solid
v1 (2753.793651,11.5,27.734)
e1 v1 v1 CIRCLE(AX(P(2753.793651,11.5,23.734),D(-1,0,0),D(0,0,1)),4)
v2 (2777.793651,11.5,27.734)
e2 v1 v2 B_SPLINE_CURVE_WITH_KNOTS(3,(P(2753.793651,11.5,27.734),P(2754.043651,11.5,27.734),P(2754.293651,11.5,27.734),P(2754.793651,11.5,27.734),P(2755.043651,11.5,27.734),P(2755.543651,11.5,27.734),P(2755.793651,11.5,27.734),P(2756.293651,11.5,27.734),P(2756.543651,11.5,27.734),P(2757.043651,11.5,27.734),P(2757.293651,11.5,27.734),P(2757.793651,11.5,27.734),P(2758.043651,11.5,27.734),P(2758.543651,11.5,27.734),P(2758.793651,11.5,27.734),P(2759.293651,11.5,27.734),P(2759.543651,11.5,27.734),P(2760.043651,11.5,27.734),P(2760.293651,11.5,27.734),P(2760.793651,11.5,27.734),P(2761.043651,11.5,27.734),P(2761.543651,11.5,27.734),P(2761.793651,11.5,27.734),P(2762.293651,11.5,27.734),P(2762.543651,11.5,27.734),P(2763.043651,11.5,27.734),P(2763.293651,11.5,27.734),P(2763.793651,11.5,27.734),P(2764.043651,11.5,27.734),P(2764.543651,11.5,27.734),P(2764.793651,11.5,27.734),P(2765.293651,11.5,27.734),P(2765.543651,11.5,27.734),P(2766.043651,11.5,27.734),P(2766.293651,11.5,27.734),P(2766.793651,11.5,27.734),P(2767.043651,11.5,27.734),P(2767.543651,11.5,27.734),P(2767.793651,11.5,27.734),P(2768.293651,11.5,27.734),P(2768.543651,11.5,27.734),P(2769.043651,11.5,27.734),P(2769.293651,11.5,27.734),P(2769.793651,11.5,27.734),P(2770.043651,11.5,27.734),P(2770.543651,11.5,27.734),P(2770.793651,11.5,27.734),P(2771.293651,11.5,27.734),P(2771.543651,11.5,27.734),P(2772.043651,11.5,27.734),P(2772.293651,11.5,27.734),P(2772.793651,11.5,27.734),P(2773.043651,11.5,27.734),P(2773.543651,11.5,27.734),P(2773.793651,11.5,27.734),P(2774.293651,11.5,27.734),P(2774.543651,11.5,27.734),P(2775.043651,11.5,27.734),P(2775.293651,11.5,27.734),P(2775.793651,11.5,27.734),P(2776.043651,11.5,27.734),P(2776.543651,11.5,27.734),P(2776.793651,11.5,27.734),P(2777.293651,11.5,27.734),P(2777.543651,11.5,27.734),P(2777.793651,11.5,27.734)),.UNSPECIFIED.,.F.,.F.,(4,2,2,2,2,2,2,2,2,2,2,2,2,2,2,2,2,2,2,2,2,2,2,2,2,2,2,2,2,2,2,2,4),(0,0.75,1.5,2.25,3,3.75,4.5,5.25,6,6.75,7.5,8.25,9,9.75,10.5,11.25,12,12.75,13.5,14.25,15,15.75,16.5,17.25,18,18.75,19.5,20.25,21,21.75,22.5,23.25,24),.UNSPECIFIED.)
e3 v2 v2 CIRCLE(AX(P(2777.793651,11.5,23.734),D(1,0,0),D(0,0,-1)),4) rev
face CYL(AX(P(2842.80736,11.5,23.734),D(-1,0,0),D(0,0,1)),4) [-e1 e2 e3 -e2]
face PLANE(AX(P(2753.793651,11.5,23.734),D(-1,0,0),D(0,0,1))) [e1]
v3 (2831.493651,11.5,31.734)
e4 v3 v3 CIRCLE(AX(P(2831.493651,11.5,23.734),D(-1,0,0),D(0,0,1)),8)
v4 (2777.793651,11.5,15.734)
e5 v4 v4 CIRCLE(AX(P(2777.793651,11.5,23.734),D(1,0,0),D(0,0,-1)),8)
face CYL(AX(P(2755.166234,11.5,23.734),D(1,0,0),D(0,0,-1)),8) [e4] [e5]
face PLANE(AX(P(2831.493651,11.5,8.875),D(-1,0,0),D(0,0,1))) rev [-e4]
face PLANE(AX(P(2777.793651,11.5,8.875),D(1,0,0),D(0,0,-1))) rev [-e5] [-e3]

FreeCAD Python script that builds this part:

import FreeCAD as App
import Part
import Sketcher
from FreeCAD import Vector

doc = App.newDocument("Part")
body = doc.addObject("PartDesign::Body", "Body")

# Sketch on YZ plane
sketch1 = doc.addObject("Sketcher::SketchObject", "Sketch")
body.addObject(sketch1)
sketch1.AttachmentSupport = (doc.YZ_Plane, [""])
sketch1.MapMode = "FlatFace"
sketch1.AttachmentOffset = App.Placement(Vector(0, 0, 2753.793651), App.Rotation())
sketch1.addGeometry(Part.Circle(Vector(11.5, 23.734, 0), Vector(0, 0, 1), 4), False)
sketch1.addConstraint([
    Sketcher.Constraint("Diameter", 0, 8.0),
    Sketcher.Constraint("DistanceX", -1, 1, 0, 3, 11.5),
    Sketcher.Constraint("DistanceY", -1, 1, 0, 3, 23.734),
])
pad1 = doc.addObject("PartDesign::Pad", "Pad")
body.addObject(pad1)
pad1.Profile = sketch1
pad1.Length = 77.7

# Sketch on YZ plane
sketch2 = doc.addObject("Sketcher::SketchObject", "Sketch001")
body.addObject(sketch2)
sketch2.AttachmentSupport = (doc.YZ_Plane, [""])
sketch2.MapMode = "FlatFace"
sketch2.AttachmentOffset = App.Placement(Vector(0, 0, 2831.493651), App.Rotation())
sketch2.addGeometry(Part.Circle(Vector(11.5, 23.734, 0), Vector(0, 0, 1), 8), False)
sketch2.addConstraint([
    Sketcher.Constraint("Diameter", 0, 16.0),
    Sketcher.Constraint("DistanceX", -1, 1, 0, 3, 11.5),
    Sketcher.Constraint("DistanceY", -1, 1, 0, 3, 23.734),
])
pad2 = doc.addObject("PartDesign::Pad", "Pad001")
body.addObject(pad2)
pad2.Profile = sketch2
pad2.Length = 53.7
pad2.Reversed = True

doc.recompute()
